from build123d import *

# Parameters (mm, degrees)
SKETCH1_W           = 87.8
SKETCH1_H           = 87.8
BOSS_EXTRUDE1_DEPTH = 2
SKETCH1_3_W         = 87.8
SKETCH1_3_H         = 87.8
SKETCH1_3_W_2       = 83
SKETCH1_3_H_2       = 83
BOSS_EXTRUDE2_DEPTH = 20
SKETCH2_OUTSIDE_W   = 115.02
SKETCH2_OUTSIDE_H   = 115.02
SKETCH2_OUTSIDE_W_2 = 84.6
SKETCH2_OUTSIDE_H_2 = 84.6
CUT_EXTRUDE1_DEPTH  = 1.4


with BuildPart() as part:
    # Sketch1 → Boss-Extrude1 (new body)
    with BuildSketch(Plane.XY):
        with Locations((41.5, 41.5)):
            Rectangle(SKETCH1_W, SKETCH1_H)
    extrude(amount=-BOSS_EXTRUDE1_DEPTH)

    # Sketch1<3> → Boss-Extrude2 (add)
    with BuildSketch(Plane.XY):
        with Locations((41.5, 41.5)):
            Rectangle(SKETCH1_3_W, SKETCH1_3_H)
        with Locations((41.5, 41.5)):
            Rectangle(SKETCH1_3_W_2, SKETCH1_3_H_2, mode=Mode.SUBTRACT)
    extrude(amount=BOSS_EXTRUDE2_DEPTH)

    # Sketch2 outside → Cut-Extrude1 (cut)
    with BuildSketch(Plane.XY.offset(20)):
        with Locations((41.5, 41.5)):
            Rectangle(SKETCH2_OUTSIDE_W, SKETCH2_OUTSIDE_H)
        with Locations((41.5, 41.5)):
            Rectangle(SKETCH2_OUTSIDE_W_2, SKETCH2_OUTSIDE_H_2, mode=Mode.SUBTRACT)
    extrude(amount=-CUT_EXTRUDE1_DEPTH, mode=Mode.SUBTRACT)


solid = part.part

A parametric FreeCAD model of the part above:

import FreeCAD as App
import Part
import Sketcher
Q = App.Units.Quantity

doc = App.newDocument("Part")
params = doc.addObject("Spreadsheet::Sheet", "Params")
for row, (alias, value) in enumerate([
    ("sketch1_width", "87.8 mm"),
    ("pad1_length", "2 mm"),
    ("sketch2_width", "83 mm"),
    ("sketch2_width2", "87.8 mm"),
    ("pad2_length", "20 mm"),
    ("sketch3_width", "84.6 mm"),
    ("sketch3_width2", "115.02 mm"),
    ("pocket1_length", "1.4 mm"),
], start=1):
    params.set(f"A{row}", alias)
    params.set(f"B{row}", "=" + value)
    params.setAlias(f"B{row}", alias)

body = doc.addObject("PartDesign::Body", "Body")

# Sketch on XY plane
sketch1 = body.newObject("Sketcher::SketchObject", "Sketch")
sketch1.AttachmentSupport = (doc.getObject("XY_Plane"), [""])
sketch1.MapMode = "FlatFace"
sketch1.addGeometry([
    Part.LineSegment(App.Vector(-2, 85, 0), App.Vector(-2, -2, 0)),
    Part.LineSegment(App.Vector(-2, -2, 0), App.Vector(85, -2, 0)),
    Part.LineSegment(App.Vector(85, -2, 0), App.Vector(85, 85, 0)),
    Part.LineSegment(App.Vector(85, 85, 0), App.Vector(-2, 85, 0)),
], False)
sketch1.addConstraint([
    Sketcher.Constraint("Coincident", 0, 2, 1, 1),
    Sketcher.Constraint("Coincident", 1, 2, 2, 1),
    Sketcher.Constraint("Coincident", 2, 2, 3, 1),
    Sketcher.Constraint("Coincident", 3, 2, 0, 1),
    Sketcher.Constraint("Vertical", 0),
    Sketcher.Constraint("Horizontal", 1),
    Sketcher.Constraint("Vertical", 2),
    Sketcher.Constraint("Horizontal", 3),
    Sketcher.Constraint("Equal", 3, 0),
    Sketcher.Constraint("DistanceX", 1, 1, 1, 2, Q("87.8 mm")),
    Sketcher.Constraint("DistanceX", 0, 2, -1, 1, Q("2.4 mm")),
    Sketcher.Constraint("DistanceY", 0, 2, -1, 1, Q("2.4 mm")),
])
sketch1.setExpression("Constraints[9]", "Params.sketch1_width")
pad1 = body.newObject("PartDesign::Pad", "Pad")
pad1.Profile = sketch1
pad1.setExpression("Length", "Params.pad1_length")
pad1.Reversed = True

# Sketch on XY plane
sketch2 = body.newObject("Sketcher::SketchObject", "Sketch001")
sketch2.AttachmentSupport = (doc.getObject("XY_Plane"), [""])
sketch2.MapMode = "FlatFace"
sketch2.addGeometry([
    Part.LineSegment(App.Vector(-2, 85, 0), App.Vector(-2, -2, 0)),  # 0
    Part.LineSegment(App.Vector(-2, -2, 0), App.Vector(85, -2, 0)),  # 1
    Part.LineSegment(App.Vector(85, -2, 0), App.Vector(85, 85, 0)),  # 2
    Part.LineSegment(App.Vector(85, 85, 0), App.Vector(-2, 85, 0)),  # 3
    Part.LineSegment(App.Vector(83, 0, 0), App.Vector(0, 0, 0)),  # 4
    Part.LineSegment(App.Vector(0, 0, 0), App.Vector(0, 83, 0)),  # 5
    Part.LineSegment(App.Vector(0, 83, 0), App.Vector(83, 83, 0)),  # 6
    Part.LineSegment(App.Vector(83, 83, 0), App.Vector(83, 0, 0)),  # 7
], False)
sketch2.addConstraint([
    Sketcher.Constraint("Coincident", 0, 2, 1, 1),
    Sketcher.Constraint("Coincident", 1, 2, 2, 1),
    Sketcher.Constraint("Coincident", 2, 2, 3, 1),
    Sketcher.Constraint("Coincident", 3, 2, 0, 1),
    Sketcher.Constraint("Coincident", 4, 2, 5, 1),
    Sketcher.Constraint("Coincident", 5, 2, 6, 1),
    Sketcher.Constraint("Coincident", 6, 2, 7, 1),
    Sketcher.Constraint("Coincident", 7, 2, 4, 1),
    Sketcher.Constraint("Vertical", 0),
    Sketcher.Constraint("Horizontal", 1),
    Sketcher.Constraint("Vertical", 2),
    Sketcher.Constraint("Horizontal", 3),
    Sketcher.Constraint("Horizontal", 4),
    Sketcher.Constraint("Vertical", 5),
    Sketcher.Constraint("Horizontal", 6),
    Sketcher.Constraint("Vertical", 7),
    Sketcher.Constraint("Coincident", 4, 2, -1, 1),
    Sketcher.Constraint("Equal", 3, 0),
    Sketcher.Constraint("Equal", 6, 5),
    Sketcher.Constraint("DistanceX", 4, 2, 4, 1, Q("83 mm")),
    Sketcher.Constraint("DistanceX", 1, 1, 1, 2, Q("87.8 mm")),
    Sketcher.Constraint("DistanceX", 0, 2, -1, 1, Q("2.4 mm")),
    Sketcher.Constraint("DistanceY", 0, 2, -1, 1, Q("2.4 mm")),
])
sketch2.setExpression("Constraints[19]", "Params.sketch2_width")
sketch2.setExpression("Constraints[20]", "Params.sketch2_width2")
pad2 = body.newObject("PartDesign::Pad", "Pad001")
pad2.Profile = sketch2
pad2.setExpression("Length", "Params.pad2_length")

# Sketch on XY plane
sketch3 = body.newObject("Sketcher::SketchObject", "Sketch002")
sketch3.AttachmentSupport = (doc.getObject("XY_Plane"), [""])
sketch3.MapMode = "FlatFace"
sketch3.AttachmentOffset = App.Placement(App.Vector(0, 0, 20), App.Rotation())
sketch3.addGeometry([
    Part.LineSegment(App.Vector(-16, 99, 0), App.Vector(-16, -16, 0)),  # 0
    Part.LineSegment(App.Vector(-16, -16, 0), App.Vector(99, -16, 0)),  # 1
    Part.LineSegment(App.Vector(99, -16, 0), App.Vector(99, 99, 0)),  # 2
    Part.LineSegment(App.Vector(99, 99, 0), App.Vector(-16, 99, 0)),  # 3
    Part.LineSegment(App.Vector(84, -1, 0), App.Vector(-1, -1, 0)),  # 4
    Part.LineSegment(App.Vector(-1, -1, 0), App.Vector(-1, 84, 0)),  # 5
    Part.LineSegment(App.Vector(-1, 84, 0), App.Vector(84, 84, 0)),  # 6
    Part.LineSegment(App.Vector(84, 84, 0), App.Vector(84, -1, 0)),  # 7
], False)
sketch3.addConstraint([
    Sketcher.Constraint("Coincident", 0, 2, 1, 1),
    Sketcher.Constraint("Coincident", 1, 2, 2, 1),
    Sketcher.Constraint("Coincident", 2, 2, 3, 1),
    Sketcher.Constraint("Coincident", 3, 2, 0, 1),
    Sketcher.Constraint("Coincident", 4, 2, 5, 1),
    Sketcher.Constraint("Coincident", 5, 2, 6, 1),
    Sketcher.Constraint("Coincident", 6, 2, 7, 1),
    Sketcher.Constraint("Coincident", 7, 2, 4, 1),
    Sketcher.Constraint("Vertical", 0),
    Sketcher.Constraint("Horizontal", 1),
    Sketcher.Constraint("Vertical", 2),
    Sketcher.Constraint("Horizontal", 3),
    Sketcher.Constraint("Horizontal", 4),
    Sketcher.Constraint("Vertical", 5),
    Sketcher.Constraint("Horizontal", 6),
    Sketcher.Constraint("Vertical", 7),
    Sketcher.Constraint("Equal", 3, 0),
    Sketcher.Constraint("Equal", 6, 5),
    Sketcher.Constraint("DistanceX", 4, 2, 4, 1, Q("84.6 mm")),
    Sketcher.Constraint("DistanceX", 1, 1, 1, 2, Q("115.02 mm")),
    Sketcher.Constraint("DistanceX", 4, 2, -1, 1, Q("0.8 mm")),
    Sketcher.Constraint("DistanceY", 4, 2, -1, 1, Q("0.8 mm")),
    Sketcher.Constraint("DistanceX", 0, 2, -1, 1, Q("16.01 mm")),
    Sketcher.Constraint("DistanceY", 0, 2, -1, 1, Q("16.01 mm")),
])
sketch3.setExpression("Constraints[18]", "Params.sketch3_width")
sketch3.setExpression("Constraints[19]", "Params.sketch3_width2")
pocket1 = body.newObject("PartDesign::Pocket", "Pocket")
pocket1.Profile = sketch3
pocket1.setExpression("Length", "Params.pocket1_length")

doc.recompute()
